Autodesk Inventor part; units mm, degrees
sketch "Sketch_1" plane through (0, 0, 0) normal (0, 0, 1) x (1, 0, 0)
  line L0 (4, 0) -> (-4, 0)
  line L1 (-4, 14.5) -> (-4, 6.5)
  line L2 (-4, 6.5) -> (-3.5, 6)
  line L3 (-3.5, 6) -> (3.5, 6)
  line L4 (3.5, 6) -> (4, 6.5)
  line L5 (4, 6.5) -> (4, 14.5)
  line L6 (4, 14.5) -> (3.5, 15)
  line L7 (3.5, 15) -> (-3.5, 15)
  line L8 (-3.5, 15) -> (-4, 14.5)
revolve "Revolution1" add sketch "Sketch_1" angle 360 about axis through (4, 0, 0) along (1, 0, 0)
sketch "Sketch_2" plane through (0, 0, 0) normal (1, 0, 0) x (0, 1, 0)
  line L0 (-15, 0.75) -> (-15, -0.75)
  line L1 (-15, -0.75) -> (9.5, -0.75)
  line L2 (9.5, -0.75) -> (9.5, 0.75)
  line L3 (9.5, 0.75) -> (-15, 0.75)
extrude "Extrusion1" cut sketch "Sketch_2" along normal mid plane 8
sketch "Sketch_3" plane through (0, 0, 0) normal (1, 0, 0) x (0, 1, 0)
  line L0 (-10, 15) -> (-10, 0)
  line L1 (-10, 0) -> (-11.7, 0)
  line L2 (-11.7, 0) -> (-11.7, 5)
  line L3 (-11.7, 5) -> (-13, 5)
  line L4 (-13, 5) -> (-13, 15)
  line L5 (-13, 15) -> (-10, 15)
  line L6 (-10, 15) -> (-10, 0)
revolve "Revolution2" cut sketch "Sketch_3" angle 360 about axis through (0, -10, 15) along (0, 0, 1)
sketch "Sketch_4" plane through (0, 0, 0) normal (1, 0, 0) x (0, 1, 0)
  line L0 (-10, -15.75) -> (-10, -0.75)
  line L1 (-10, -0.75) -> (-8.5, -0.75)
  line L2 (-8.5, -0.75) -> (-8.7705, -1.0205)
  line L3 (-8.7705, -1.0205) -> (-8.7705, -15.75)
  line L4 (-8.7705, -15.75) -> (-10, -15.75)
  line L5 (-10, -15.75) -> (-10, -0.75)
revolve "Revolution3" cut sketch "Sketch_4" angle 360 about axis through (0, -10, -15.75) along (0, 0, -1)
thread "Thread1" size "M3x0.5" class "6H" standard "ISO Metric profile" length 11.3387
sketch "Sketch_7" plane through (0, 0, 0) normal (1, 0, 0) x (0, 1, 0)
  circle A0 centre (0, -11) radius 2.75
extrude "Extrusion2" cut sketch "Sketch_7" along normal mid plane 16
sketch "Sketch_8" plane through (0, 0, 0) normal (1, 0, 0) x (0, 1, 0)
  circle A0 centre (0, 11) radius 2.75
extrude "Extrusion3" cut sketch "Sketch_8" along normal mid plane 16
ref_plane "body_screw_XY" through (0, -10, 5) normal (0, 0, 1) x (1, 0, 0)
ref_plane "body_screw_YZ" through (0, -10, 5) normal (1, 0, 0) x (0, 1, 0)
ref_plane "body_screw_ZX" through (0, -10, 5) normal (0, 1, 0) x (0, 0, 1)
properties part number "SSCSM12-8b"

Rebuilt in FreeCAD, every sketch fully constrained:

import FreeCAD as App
import Part
import Sketcher
from FreeCAD import Vector
Q = App.Units.Quantity

doc = App.newDocument("Part")
body = doc.addObject("PartDesign::Body", "Body")

sketch1 = body.newObject("Sketcher::SketchObject", "Sketch")
sketch1.AttachmentSupport = (doc.getObject("XY_Plane"), [""])
sketch1.MapMode = "FlatFace"
sketch1.addGeometry([
    Part.LineSegment(Vector(-3.5, 15, 0), Vector(-4, 14.5, 0)),
    Part.LineSegment(Vector(-4, 14.5, 0), Vector(-4, 6.5, 0)),
    Part.LineSegment(Vector(-4, 6.5, 0), Vector(-3.5, 6, 0)),
    Part.LineSegment(Vector(-3.5, 6, 0), Vector(3.5, 6, 0)),
    Part.LineSegment(Vector(3.5, 6, 0), Vector(4, 6.5, 0)),
    Part.LineSegment(Vector(4, 6.5, 0), Vector(4, 14.5, 0)),
    Part.LineSegment(Vector(4, 14.5, 0), Vector(3.5, 15, 0)),
    Part.LineSegment(Vector(3.5, 15, 0), Vector(-3.5, 15, 0)),
], False)
sketch1.addConstraint([
    Sketcher.Constraint("Coincident", 0, 2, 1, 1),
    Sketcher.Constraint("Coincident", 1, 2, 2, 1),
    Sketcher.Constraint("Coincident", 2, 2, 3, 1),
    Sketcher.Constraint("Coincident", 3, 2, 4, 1),
    Sketcher.Constraint("Coincident", 4, 2, 5, 1),
    Sketcher.Constraint("Coincident", 5, 2, 6, 1),
    Sketcher.Constraint("Coincident", 6, 2, 7, 1),
    Sketcher.Constraint("Coincident", 7, 2, 0, 1),
    Sketcher.Constraint("Vertical", 1),
    Sketcher.Constraint("Horizontal", 3),
    Sketcher.Constraint("Vertical", 5),
    Sketcher.Constraint("Horizontal", 7),
    Sketcher.Constraint("Symmetric", 1, 2, 4, 2, -2),
    Sketcher.Constraint("Perpendicular", 0, 2),
    Sketcher.Constraint("Perpendicular", 2, 4),
    Sketcher.Constraint("Perpendicular", 4, 6),
    Sketcher.Constraint("Horizontal", 0, 2, 5, 2),
    Sketcher.Constraint("Vertical", 3, 2, 6, 2),
    Sketcher.Constraint("Vertical", 2, 2, 7, 2),
    Sketcher.Constraint("DistanceX", 3, 1, 3, 2, Q("7 mm")),
    Sketcher.Constraint("DistanceY", 1, 2, 1, 1, Q("8 mm")),
    Sketcher.Constraint("DistanceX", 0, 2, -1, 1, Q("4 mm")),
    Sketcher.Constraint("DistanceY", -1, 1, 2, 2, Q("6 mm")),
])
revolution = body.newObject("PartDesign::Revolution", "Revolution")
revolution.Profile = sketch1
revolution.ReferenceAxis = (sketch1, ["H_Axis"])
revolution.Angle = 360

sketch2 = body.newObject("Sketcher::SketchObject", "Sketch001")
sketch2.AttachmentSupport = (doc.getObject("YZ_Plane"), [""])
sketch2.MapMode = "FlatFace"
sketch2.addGeometry([
    Part.LineSegment(Vector(9.5, 0.8, 0), Vector(-15, 0.8, 0)),
    Part.LineSegment(Vector(-15, 0.8, 0), Vector(-15, -0.8, 0)),
    Part.LineSegment(Vector(-15, -0.8, 0), Vector(9.5, -0.8, 0)),
    Part.LineSegment(Vector(9.5, -0.8, 0), Vector(9.5, 0.8, 0)),
], False)
sketch2.addConstraint([
    Sketcher.Constraint("Coincident", 0, 2, 1, 1),
    Sketcher.Constraint("Coincident", 1, 2, 2, 1),
    Sketcher.Constraint("Coincident", 2, 2, 3, 1),
    Sketcher.Constraint("Coincident", 3, 2, 0, 1),
    Sketcher.Constraint("Horizontal", 0),
    Sketcher.Constraint("Vertical", 1),
    Sketcher.Constraint("Horizontal", 2),
    Sketcher.Constraint("Vertical", 3),
    Sketcher.Constraint("DistanceX", 0, 2, 0, 1, Q("24.5 mm")),
    Sketcher.Constraint("DistanceY", 1, 2, 1, 1, Q("1.5 mm")),
    Sketcher.Constraint("DistanceX", 0, 2, -1, 1, Q("15 mm")),
    Sketcher.Constraint("DistanceY", -1, 1, 0, 2, Q("0.75 mm")),
])
pocket1 = body.newObject("PartDesign::Pocket", "Pocket")
pocket1.Profile = sketch2
pocket1.Length = 8
pocket1.Midplane = True

sketch3 = body.newObject("Sketcher::SketchObject", "Sketch002")
sketch3.AttachmentSupport = (doc.getObject("YZ_Plane"), [""])
sketch3.MapMode = "FlatFace"
sketch3.addGeometry([
    Part.LineSegment(Vector(-10, 0, 0), Vector(-10, 15, 0)),
    Part.LineSegment(Vector(-10, 15, 0), Vector(-13, 15, 0)),
    Part.LineSegment(Vector(-13, 15, 0), Vector(-13, 5, 0)),
    Part.LineSegment(Vector(-13, 5, 0), Vector(-11.7, 5, 0)),
    Part.LineSegment(Vector(-11.7, 5, 0), Vector(-11.7, 0, 0)),
    Part.LineSegment(Vector(-11.7, 0, 0), Vector(-10, 0, 0)),
], False)
sketch3.addGeometry(Part.LineSegment(Vector(-10, 0, 0), Vector(-10, 15, 0)), True)
sketch3.addConstraint([
    Sketcher.Constraint("Coincident", 0, 2, 1, 1),
    Sketcher.Constraint("Coincident", 1, 2, 2, 1),
    Sketcher.Constraint("Coincident", 2, 2, 3, 1),
    Sketcher.Constraint("Coincident", 3, 2, 4, 1),
    Sketcher.Constraint("Coincident", 4, 2, 5, 1),
    Sketcher.Constraint("Coincident", 5, 2, 0, 1),
    Sketcher.Constraint("Vertical", 0),
    Sketcher.Constraint("Horizontal", 1),
    Sketcher.Constraint("Vertical", 2),
    Sketcher.Constraint("Horizontal", 3),
    Sketcher.Constraint("Vertical", 4),
    Sketcher.Constraint("Horizontal", 5),
    Sketcher.Constraint("Vertical", 6),
    Sketcher.Constraint("Coincident", 6, 1, 5, 2),
    Sketcher.Constraint("PointOnObject", 4, 2, -1),
    Sketcher.Constraint("Horizontal", 1, 2, 6, 2),
    Sketcher.Constraint("DistanceX", 1, 2, 1, 1, Q("3 mm")),
    Sketcher.Constraint("DistanceY", 0, 1, 0, 2, Q("15 mm")),
    Sketcher.Constraint("DistanceY", 2, 2, 2, 1, Q("10 mm")),
    Sketcher.Constraint("DistanceX", 3, 1, 3, 2, Q("1.3 mm")),
    Sketcher.Constraint("DistanceX", 0, 2, -1, 1, Q("10 mm")),
])
groove = body.newObject("PartDesign::Groove", "Groove")
groove.Profile = sketch3
groove.ReferenceAxis = (sketch3, ["Axis0"])
groove.Angle = 360

sketch4 = body.newObject("Sketcher::SketchObject", "Sketch003")
sketch4.AttachmentSupport = (doc.getObject("YZ_Plane"), [""])
sketch4.MapMode = "FlatFace"
sketch4.addGeometry([
    Part.LineSegment(Vector(-10, -0.75, 0), Vector(-10, -15.75, 0)),
    Part.LineSegment(Vector(-10, -15.75, 0), Vector(-8.77, -15.75, 0)),
    Part.LineSegment(Vector(-8.77, -15.75, 0), Vector(-8.77, -1.02, 0)),
    Part.LineSegment(Vector(-8.77, -1.02, 0), Vector(-8.5, -0.75, 0)),
    Part.LineSegment(Vector(-8.5, -0.75, 0), Vector(-10, -0.75, 0)),
], False)
sketch4.addGeometry(Part.LineSegment(Vector(-10, -0.75, 0), Vector(-10, -15.75, 0)), True)
sketch4.addConstraint([
    Sketcher.Constraint("Coincident", 0, 2, 1, 1),
    Sketcher.Constraint("Coincident", 1, 2, 2, 1),
    Sketcher.Constraint("Coincident", 2, 2, 3, 1),
    Sketcher.Constraint("Coincident", 3, 2, 4, 1),
    Sketcher.Constraint("Coincident", 4, 2, 0, 1),
    Sketcher.Constraint("Vertical", 0),
    Sketcher.Constraint("Horizontal", 1),
    Sketcher.Constraint("Vertical", 2),
    Sketcher.Constraint("Horizontal", 4),
    Sketcher.Constraint("Vertical", 5),
    Sketcher.Constraint("Coincident", 5, 1, 4, 2),
    Sketcher.Constraint("Horizontal", 1, 2, 5, 2),
    Sketcher.Constraint("DistanceY", 0, 2, 0, 1, Q("15 mm")),
    Sketcher.Constraint("Angle", 3, Q("45 deg")),
    Sketcher.Constraint("DistanceX", 4, 2, 4, 1, Q("1.5 mm")),
    Sketcher.Constraint("DistanceX", 0, 2, -1, 1, Q("10 mm")),
    Sketcher.Constraint("DistanceY", 0, 2, -1, 1, Q("15.75 mm")),
    Sketcher.Constraint("DistanceX", 1, 1, 1, 2, Q("1.2295 mm")),
])
groove2 = body.newObject("PartDesign::Groove", "Groove001")
groove2.Profile = sketch4
groove2.ReferenceAxis = (sketch4, ["Axis0"])
groove2.Angle = 360

sketch5 = body.newObject("Sketcher::SketchObject", "Sketch004")
sketch5.AttachmentSupport = (doc.getObject("YZ_Plane"), [""])
sketch5.MapMode = "FlatFace"
sketch5.addGeometry(Part.Circle(Vector(0, -11, 0), Vector(0, 0, 1), 2.8), False)
sketch5.addConstraint([
    Sketcher.Constraint("PointOnObject", 0, 3, -2),
    Sketcher.Constraint("Diameter", 0, Q("5.5 mm")),
    Sketcher.Constraint("DistanceY", 0, 3, -1, 1, Q("11 mm")),
])
pocket2 = body.newObject("PartDesign::Pocket", "Pocket001")
pocket2.Profile = sketch5
pocket2.Length = 16
pocket2.Midplane = True

sketch6 = body.newObject("Sketcher::SketchObject", "Sketch005")
sketch6.AttachmentSupport = (doc.getObject("YZ_Plane"), [""])
sketch6.MapMode = "FlatFace"
sketch6.addGeometry(Part.Circle(Vector(0, 11, 0), Vector(0, 0, 1), 2.8), False)
sketch6.addConstraint([
    Sketcher.Constraint("PointOnObject", 0, 3, -2),
    Sketcher.Constraint("Diameter", 0, Q("5.5 mm")),
    Sketcher.Constraint("DistanceY", -1, 1, 0, 3, Q("11 mm")),
])
pocket3 = body.newObject("PartDesign::Pocket", "Pocket002")
pocket3.Profile = sketch6
pocket3.Length = 16
pocket3.Midplane = True

doc.recompute()
